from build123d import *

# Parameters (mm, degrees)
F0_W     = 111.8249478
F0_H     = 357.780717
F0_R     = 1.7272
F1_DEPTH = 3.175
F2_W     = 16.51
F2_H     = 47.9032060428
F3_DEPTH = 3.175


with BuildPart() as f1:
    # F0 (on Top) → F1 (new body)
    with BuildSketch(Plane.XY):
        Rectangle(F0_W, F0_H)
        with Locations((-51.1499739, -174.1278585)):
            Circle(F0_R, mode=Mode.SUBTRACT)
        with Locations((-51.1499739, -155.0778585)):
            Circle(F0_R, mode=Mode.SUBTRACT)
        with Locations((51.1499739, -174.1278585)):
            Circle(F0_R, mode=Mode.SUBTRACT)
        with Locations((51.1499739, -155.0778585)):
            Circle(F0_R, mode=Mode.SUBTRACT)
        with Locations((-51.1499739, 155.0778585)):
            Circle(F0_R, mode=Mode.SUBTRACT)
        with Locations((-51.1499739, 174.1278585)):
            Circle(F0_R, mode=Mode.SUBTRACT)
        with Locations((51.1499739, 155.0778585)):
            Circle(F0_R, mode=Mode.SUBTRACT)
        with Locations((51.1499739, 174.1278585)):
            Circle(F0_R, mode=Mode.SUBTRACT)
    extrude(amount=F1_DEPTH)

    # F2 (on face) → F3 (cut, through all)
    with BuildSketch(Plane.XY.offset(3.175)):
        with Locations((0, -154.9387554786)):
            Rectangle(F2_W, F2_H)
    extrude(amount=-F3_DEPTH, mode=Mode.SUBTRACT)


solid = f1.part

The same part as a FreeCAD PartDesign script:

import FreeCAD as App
import Part
import Sketcher
Q = App.Units.Quantity


def add_polygon(sketch, points):
    """Adds a closed chain of lines whose ends are joined by coincident constraints."""
    first, n = sketch.GeometryCount, len(points)
    for a, b in zip(points, points[1:] + points[:1]):
        sketch.addGeometry(Part.LineSegment(App.Vector(*a, 0), App.Vector(*b, 0)), False)
    for i in range(n):
        sketch.addConstraint(Sketcher.Constraint("Coincident", first + i, 2, first + (i + 1) % n, 1))

doc = App.newDocument("Part")
params = doc.addObject("Spreadsheet::Sheet", "Params")
for row, (alias, value) in enumerate([
    ("sketch1_diameter", "0.136 in"),
    ("pad1_length", "0.125 in"),
    ("sketch2_width", "0.65 in"),
], start=1):
    params.set(f"A{row}", alias)
    params.set(f"B{row}", "=" + value)
    params.setAlias(f"B{row}", alias)

body = doc.addObject("PartDesign::Body", "Body")

# Sketch on XY plane
sketch1 = body.newObject("Sketcher::SketchObject", "Sketch")
sketch1.AttachmentSupport = (doc.getObject("XY_Plane"), [""])
sketch1.MapMode = "FlatFace"
add_polygon(sketch1, [(-55.9, 178.9), (-55.9, -178.9), (55.9, -178.9), (55.9, 178.9)])  # lines 0-3
sketch1.addGeometry(Part.Circle(App.Vector(-51.1, -174.1, 0), App.Vector(0, 0, 1), 1.7), False)  # 4
sketch1.addGeometry(Part.Circle(App.Vector(-51.1, -155.1, 0), App.Vector(0, 0, 1), 1.7), False)  # 5
sketch1.addGeometry(Part.Circle(App.Vector(51.1, -174.1, 0), App.Vector(0, 0, 1), 1.7), False)  # 6
sketch1.addGeometry(Part.Circle(App.Vector(51.1, -155.1, 0), App.Vector(0, 0, 1), 1.7), False)  # 7
sketch1.addGeometry(Part.Circle(App.Vector(-51.1, 155.1, 0), App.Vector(0, 0, 1), 1.7), False)  # 8
sketch1.addGeometry(Part.Circle(App.Vector(-51.1, 174.1, 0), App.Vector(0, 0, 1), 1.7), False)  # 9
sketch1.addGeometry(Part.Circle(App.Vector(51.1, 155.1, 0), App.Vector(0, 0, 1), 1.7), False)  # 10
sketch1.addGeometry(Part.Circle(App.Vector(51.1, 174.1, 0), App.Vector(0, 0, 1), 1.7), False)  # 11
sketch1.addConstraint(Sketcher.Constraint("Vertical", 0))
sketch1.addConstraint(Sketcher.Constraint("Horizontal", 1))
sketch1.addConstraint(Sketcher.Constraint("Vertical", 2))
sketch1.addConstraint(Sketcher.Constraint("Horizontal", 3))
sketch1.addConstraint(Sketcher.Constraint("Equal", 4, 5))
sketch1.addConstraint(Sketcher.Constraint("Equal", 5, 6))
sketch1.addConstraint(Sketcher.Constraint("Equal", 6, 7))
sketch1.addConstraint(Sketcher.Constraint("Equal", 7, 8))
sketch1.addConstraint(Sketcher.Constraint("Equal", 8, 9))
sketch1.addConstraint(Sketcher.Constraint("Equal", 9, 10))
sketch1.addConstraint(Sketcher.Constraint("Equal", 10, 11))
sketch1.addConstraint(Sketcher.Constraint("Symmetric", 7, 3, 8, 3, -1, 1))
sketch1.addConstraint(Sketcher.Constraint("Symmetric", 6, 3, 9, 3, -1, 1))
sketch1.addConstraint(Sketcher.Constraint("Symmetric", 5, 3, 10, 3, -1, 1))
sketch1.addConstraint(Sketcher.Constraint("Symmetric", 4, 3, 11, 3, -1, 1))
sketch1.addConstraint(Sketcher.Constraint("Symmetric", 0, 2, 2, 2, -1, 1))
sketch1.addConstraint(Sketcher.Constraint("Symmetric", 4, 3, 6, 3, -2))
sketch1.addConstraint(Sketcher.Constraint("Symmetric", 5, 3, 7, 3, -2))
sketch1.addConstraint(Sketcher.Constraint("Vertical", 4, 3, 5, 3))
sketch1.addConstraint(Sketcher.Constraint("Diameter", 4, Q("0.136 in")))
sketch1.addConstraint(Sketcher.Constraint("DistanceY", 4, 3, 5, 3, Q("0.75 in")))
sketch1.addConstraint(Sketcher.Constraint("DistanceX", 0, 2, 4, 3, Q("0.1875 in")))
sketch1.addConstraint(Sketcher.Constraint("DistanceY", 0, 2, 4, 3, Q("0.1875 in")))
sketch1.addConstraint(Sketcher.Constraint("DistanceX", 1, 1, 1, 2, 111.824948))
sketch1.addConstraint(Sketcher.Constraint("DistanceY", 0, 2, 0, 1, 357.780717))
sketch1.setExpression("Constraints[23]", "Params.sketch1_diameter")
pad1 = body.newObject("PartDesign::Pad", "Pad")
pad1.Profile = sketch1
pad1.setExpression("Length", "Params.pad1_length")

# Sketch on XY plane
sketch2 = body.newObject("Sketcher::SketchObject", "Sketch001")
sketch2.AttachmentSupport = (doc.getObject("XY_Plane"), [""])
sketch2.MapMode = "FlatFace"
sketch2.AttachmentOffset = App.Placement(App.Vector(0, 0, 0.125 * 25.4), App.Rotation())
add_polygon(sketch2, [(-8, -131), (-8, -179), (8, -179), (8, -131)])  # lines 0-3
sketch2.addConstraint(Sketcher.Constraint("Vertical", 0))
sketch2.addConstraint(Sketcher.Constraint("Horizontal", 1))
sketch2.addConstraint(Sketcher.Constraint("Vertical", 2))
sketch2.addConstraint(Sketcher.Constraint("Horizontal", 3))
sketch2.addConstraint(Sketcher.Constraint("DistanceX", 1, 1, 1, 2, Q("0.65 in")))
sketch2.addConstraint(Sketcher.Constraint("DistanceX", 0, 2, -1, 1, Q("0.325 in")))
sketch2.addConstraint(Sketcher.Constraint("DistanceY", 0, 2, 0, 1, 47.903206))
sketch2.addConstraint(Sketcher.Constraint("DistanceY", 0, 2, -1, 1, 178.890358))
sketch2.setExpression("Constraints[8]", "Params.sketch2_width")
pocket1 = body.newObject("PartDesign::Pocket", "Pocket")
pocket1.Profile = sketch2
pocket1.Type = "ThroughAll"

doc.recompute()
